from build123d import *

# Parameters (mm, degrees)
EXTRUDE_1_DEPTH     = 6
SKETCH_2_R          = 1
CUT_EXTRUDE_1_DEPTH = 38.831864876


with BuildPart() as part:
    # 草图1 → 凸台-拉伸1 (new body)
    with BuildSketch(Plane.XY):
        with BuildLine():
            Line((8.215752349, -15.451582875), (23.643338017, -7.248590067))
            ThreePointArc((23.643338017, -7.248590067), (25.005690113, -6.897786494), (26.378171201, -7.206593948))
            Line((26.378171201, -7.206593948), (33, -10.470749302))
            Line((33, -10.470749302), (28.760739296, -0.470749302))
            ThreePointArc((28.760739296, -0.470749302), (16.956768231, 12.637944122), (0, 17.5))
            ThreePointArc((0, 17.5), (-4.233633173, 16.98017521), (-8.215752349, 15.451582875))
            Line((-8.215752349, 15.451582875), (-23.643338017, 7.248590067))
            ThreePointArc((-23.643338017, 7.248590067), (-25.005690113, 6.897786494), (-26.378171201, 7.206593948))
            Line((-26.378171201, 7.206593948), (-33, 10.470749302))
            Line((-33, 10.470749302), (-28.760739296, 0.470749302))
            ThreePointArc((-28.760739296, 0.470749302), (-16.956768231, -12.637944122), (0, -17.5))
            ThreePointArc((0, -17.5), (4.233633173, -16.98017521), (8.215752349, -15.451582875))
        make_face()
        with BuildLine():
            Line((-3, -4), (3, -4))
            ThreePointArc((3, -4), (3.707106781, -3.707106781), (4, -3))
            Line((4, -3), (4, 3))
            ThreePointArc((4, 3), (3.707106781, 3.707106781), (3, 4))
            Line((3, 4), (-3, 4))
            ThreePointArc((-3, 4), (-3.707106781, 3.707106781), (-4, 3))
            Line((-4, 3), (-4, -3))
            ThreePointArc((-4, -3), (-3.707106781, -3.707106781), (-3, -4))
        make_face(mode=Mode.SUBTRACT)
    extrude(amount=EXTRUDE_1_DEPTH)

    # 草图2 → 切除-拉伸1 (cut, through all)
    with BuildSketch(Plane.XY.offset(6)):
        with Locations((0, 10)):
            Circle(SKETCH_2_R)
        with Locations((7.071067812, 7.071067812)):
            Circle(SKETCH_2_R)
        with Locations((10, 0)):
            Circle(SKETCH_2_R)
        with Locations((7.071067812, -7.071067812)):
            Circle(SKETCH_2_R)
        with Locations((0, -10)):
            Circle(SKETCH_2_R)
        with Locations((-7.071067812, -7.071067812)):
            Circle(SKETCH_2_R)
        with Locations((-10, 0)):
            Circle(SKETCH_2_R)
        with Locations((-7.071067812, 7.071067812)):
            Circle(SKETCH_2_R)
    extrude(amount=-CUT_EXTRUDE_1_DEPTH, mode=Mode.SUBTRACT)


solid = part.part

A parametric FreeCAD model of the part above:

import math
import FreeCAD as App
import Part
import Sketcher
Q = App.Units.Quantity

doc = App.newDocument("Part")
body = doc.addObject("PartDesign::Body", "Body")

# Sketch on XY plane
sketch1 = doc.addObject("Sketcher::SketchObject", "Sketch")
body.addObject(sketch1)
sketch1.AttachmentSupport = (doc.XY_Plane, [""])
sketch1.MapMode = "FlatFace"
sketch1.addGeometry([
    Part.LineSegment(App.Vector(8.2, -15.5, 0), App.Vector(23.6, -7.2, 0)),  # 0
    Part.ArcOfCircle(Part.Circle(App.Vector(25.1, -9.9, 0), App.Vector(0, 0, 1), 3), math.radians(64), math.radians(118)),  # 1
    Part.LineSegment(App.Vector(26.4, -7.2, 0), App.Vector(33, -10.5, 0)),  # 2
    Part.LineSegment(App.Vector(33, -10.5, 0), App.Vector(28.8, -0.5, 0)),  # 3
    Part.ArcOfCircle(Part.Circle(App.Vector(0, -14.5, 0), App.Vector(0, 0, 1), 32), math.radians(26), math.radians(90)),  # 4
    Part.ArcOfCircle(Part.Circle(App.Vector(0, 0, 0), App.Vector(0, 0, 1), 17.5), math.radians(90), math.radians(118)),  # 5
    Part.LineSegment(App.Vector(-8.2, 15.5, 0), App.Vector(-23.6, 7.2, 0)),  # 6
    Part.ArcOfCircle(Part.Circle(App.Vector(-25.1, 9.9, 0), App.Vector(0, 0, 1), 3), math.radians(-116), math.radians(-62)),  # 7
    Part.LineSegment(App.Vector(-26.4, 7.2, 0), App.Vector(-33, 10.5, 0)),  # 8
    Part.LineSegment(App.Vector(-33, 10.5, 0), App.Vector(-28.8, 0.5, 0)),  # 9
    Part.ArcOfCircle(Part.Circle(App.Vector(0, 14.5, 0), App.Vector(0, 0, 1), 32), math.radians(-154), math.radians(-90)),  # 10
    Part.ArcOfCircle(Part.Circle(App.Vector(0, 0, 0), App.Vector(0, 0, 1), 17.5), math.radians(-90), math.radians(-62)),  # 11
    Part.LineSegment(App.Vector(3, -4, 0), App.Vector(-3, -4, 0)),  # 12
    Part.ArcOfCircle(Part.Circle(App.Vector(-3, -3, 0), App.Vector(0, 0, 1), 1), math.radians(-180), math.radians(-90)),  # 13
    Part.LineSegment(App.Vector(-4, -3, 0), App.Vector(-4, 3, 0)),  # 14
    Part.ArcOfCircle(Part.Circle(App.Vector(-3, 3, 0), App.Vector(0, 0, 1), 1), math.radians(90), math.radians(180)),  # 15
    Part.LineSegment(App.Vector(-3, 4, 0), App.Vector(3, 4, 0)),  # 16
    Part.ArcOfCircle(Part.Circle(App.Vector(3, 3, 0), App.Vector(0, 0, 1), 1), math.radians(0), math.radians(90)),  # 17
    Part.LineSegment(App.Vector(4, 3, 0), App.Vector(4, -3, 0)),  # 18
    Part.ArcOfCircle(Part.Circle(App.Vector(3, -3, 0), App.Vector(0, 0, 1), 1), math.radians(-90), math.radians(0)),  # 19
], False)
sketch1.addConstraint([
    Sketcher.Constraint("Tangent", 0, 2, 1, 2),
    Sketcher.Constraint("Tangent", 1, 1, 2, 1),
    Sketcher.Constraint("Coincident", 2, 2, 3, 1),
    Sketcher.Constraint("Coincident", 3, 2, 4, 1),
    Sketcher.Constraint("Tangent", 4, 2, 5, 1),
    Sketcher.Constraint("Tangent", 5, 2, 6, 1),
    Sketcher.Constraint("Tangent", 6, 2, 7, 2),
    Sketcher.Constraint("Tangent", 7, 1, 8, 1),
    Sketcher.Constraint("Coincident", 8, 2, 9, 1),
    Sketcher.Constraint("Coincident", 9, 2, 10, 1),
    Sketcher.Constraint("Tangent", 10, 2, 11, 1),
    Sketcher.Constraint("Tangent", 11, 2, 0, 1),
    Sketcher.Constraint("Tangent", 12, 2, 13, 2),
    Sketcher.Constraint("Tangent", 13, 1, 14, 1),
    Sketcher.Constraint("Tangent", 14, 2, 15, 2),
    Sketcher.Constraint("Tangent", 15, 1, 16, 1),
    Sketcher.Constraint("Tangent", 16, 2, 17, 2),
    Sketcher.Constraint("Tangent", 17, 1, 18, 1),
    Sketcher.Constraint("Tangent", 18, 2, 19, 2),
    Sketcher.Constraint("Tangent", 19, 1, 12, 1),
    Sketcher.Constraint("Horizontal", 12),
    Sketcher.Constraint("Vertical", 14),
    Sketcher.Constraint("Horizontal", 16),
    Sketcher.Constraint("Vertical", 18),
    Sketcher.Constraint("Coincident", 5, 3, -1, 1),
    Sketcher.Constraint("Coincident", 11, 3, -1, 1),
    Sketcher.Constraint("Equal", 1, 7),
    Sketcher.Constraint("Equal", 4, 10),
    Sketcher.Constraint("Equal", 5, 11),
    Sketcher.Constraint("Equal", 13, 15),
    Sketcher.Constraint("Equal", 15, 17),
    Sketcher.Constraint("Equal", 17, 19),
    Sketcher.Constraint("Symmetric", 1, 3, 7, 3, -1, 1),
    Sketcher.Constraint("Symmetric", 13, 3, 17, 3, -1, 1),
    Sketcher.Constraint("Symmetric", 2, 2, 8, 2, -1, 1),
    Sketcher.Constraint("Symmetric", 3, 2, 9, 2, -1, 1),
    Sketcher.Constraint("PointOnObject", 4, 3, -2),
    Sketcher.Constraint("Equal", 16, 14),
    Sketcher.Constraint("Radius", 1, 3.0),
    Sketcher.Constraint("Radius", 4, 32.0),
    Sketcher.Constraint("Radius", 13, 1.0),
    Sketcher.Constraint("Radius", 5, 17.5),
    Sketcher.Constraint("DistanceX", 12, 2, 12, 1, 6.0),
    Sketcher.Constraint("Angle", 0, Q("28 deg")),
    Sketcher.Constraint("DistanceX", -1, 1, 2, 2, 33.0),
    Sketcher.Constraint("DistanceY", 2, 2, 3, 2, 10.0),
    Sketcher.Constraint("DistanceX", 0, 2, 3, 2, 5.117401),
    Sketcher.Constraint("Distance", 0, 17.472821),
])
pad1 = doc.addObject("PartDesign::Pad", "Pad")
body.addObject(pad1)
pad1.Profile = sketch1
pad1.Length = 6

# Sketch on XY plane
sketch2 = doc.addObject("Sketcher::SketchObject", "Sketch001")
body.addObject(sketch2)
sketch2.AttachmentSupport = (doc.XY_Plane, [""])
sketch2.MapMode = "FlatFace"
sketch2.AttachmentOffset = App.Placement(App.Vector(0, 0, 6), App.Rotation())
sketch2.addGeometry([
    Part.Circle(App.Vector(0, 10, 0), App.Vector(0, 0, 1), 1),  # 0
    Part.Circle(App.Vector(7.1, 7.1, 0), App.Vector(0, 0, 1), 1),  # 1
    Part.Circle(App.Vector(10, 0, 0), App.Vector(0, 0, 1), 1),  # 2
    Part.Circle(App.Vector(7.1, -7.1, 0), App.Vector(0, 0, 1), 1),  # 3
    Part.Circle(App.Vector(0, -10, 0), App.Vector(0, 0, 1), 1),  # 4
    Part.Circle(App.Vector(-7.1, -7.1, 0), App.Vector(0, 0, 1), 1),  # 5
    Part.Circle(App.Vector(-10, 0, 0), App.Vector(0, 0, 1), 1),  # 6
    Part.Circle(App.Vector(-7.1, 7.1, 0), App.Vector(0, 0, 1), 1),  # 7
], False)
sketch2.addConstraint([
    Sketcher.Constraint("Equal", 0, 1),
    Sketcher.Constraint("Equal", 1, 2),
    Sketcher.Constraint("Equal", 2, 3),
    Sketcher.Constraint("Equal", 3, 4),
    Sketcher.Constraint("Equal", 4, 5),
    Sketcher.Constraint("Equal", 5, 6),
    Sketcher.Constraint("Equal", 6, 7),
    Sketcher.Constraint("Symmetric", 0, 3, 4, 3, -1, 1),
    Sketcher.Constraint("Symmetric", 1, 3, 5, 3, -1, 1),
    Sketcher.Constraint("Symmetric", 2, 3, 6, 3, -1, 1),
    Sketcher.Constraint("Symmetric", 3, 3, 7, 3, -1, 1),
    Sketcher.Constraint("Symmetric", 3, 3, 5, 3, -2),
    Sketcher.Constraint("PointOnObject", 0, 3, -2),
    Sketcher.Constraint("PointOnObject", 2, 3, -1),
    Sketcher.Constraint("Diameter", 0, 2.0),
    Sketcher.Constraint("DistanceY", -1, 1, 0, 3, 10.0),
    Sketcher.Constraint("DistanceX", -1, 1, 2, 3, 10.0),
    Sketcher.Constraint("DistanceX", -1, 1, 1, 3, 7.071068),
    Sketcher.Constraint("DistanceY", -1, 1, 1, 3, 7.071068),
])
pocket1 = doc.addObject("PartDesign::Pocket", "Pocket")
body.addObject(pocket1)
pocket1.Profile = sketch2
pocket1.Type = "ThroughAll"

doc.recompute()
